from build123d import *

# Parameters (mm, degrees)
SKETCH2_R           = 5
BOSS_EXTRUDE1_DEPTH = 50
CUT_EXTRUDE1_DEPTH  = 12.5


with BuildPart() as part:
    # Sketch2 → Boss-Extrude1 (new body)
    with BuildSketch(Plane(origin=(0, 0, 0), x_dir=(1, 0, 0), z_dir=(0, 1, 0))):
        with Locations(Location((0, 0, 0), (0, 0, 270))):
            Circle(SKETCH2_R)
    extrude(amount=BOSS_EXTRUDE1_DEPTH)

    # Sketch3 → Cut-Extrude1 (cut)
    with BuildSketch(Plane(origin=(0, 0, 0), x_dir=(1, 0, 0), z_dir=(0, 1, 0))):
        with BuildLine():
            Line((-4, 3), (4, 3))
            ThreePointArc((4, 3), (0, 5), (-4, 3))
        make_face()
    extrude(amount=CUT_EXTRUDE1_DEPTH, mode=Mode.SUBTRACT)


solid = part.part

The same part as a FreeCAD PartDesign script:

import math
import FreeCAD as App
import Part
import Sketcher
from FreeCAD import Vector

doc = App.newDocument("Part")
body = doc.addObject("PartDesign::Body", "Body")

sketch1 = body.newObject("Sketcher::SketchObject", "Sketch")
sketch1.AttachmentSupport = (doc.getObject("XZ_Plane"), [""])
sketch1.MapMode = "FlatFace"
sketch1.addGeometry(Part.Circle(Vector(0, 0, 0), Vector(0, 0, 1), 5), False)
sketch1.addConstraint([
    Sketcher.Constraint("Coincident", 0, 3, -1, 1),
    Sketcher.Constraint("Diameter", 0, 10.0),
])
pad1 = body.newObject("PartDesign::Pad", "Pad")
pad1.Profile = sketch1
pad1.Length = 50
pad1.Reversed = True

sketch2 = body.newObject("Sketcher::SketchObject", "Sketch001")
sketch2.AttachmentSupport = (doc.getObject("XZ_Plane"), [""])
sketch2.MapMode = "FlatFace"
sketch2.addGeometry([
    Part.LineSegment(Vector(-4, -3, 0), Vector(4, -3, 0)),
    Part.ArcOfCircle(Part.Circle(Vector(0, 0, 0), Vector(0, 0, 1), 5), math.radians(-143), math.radians(-37)),
], False)
sketch2.addConstraint([
    Sketcher.Constraint("Coincident", 0, 1, 1, 1),
    Sketcher.Constraint("Coincident", 1, 2, 0, 2),
    Sketcher.Constraint("Horizontal", 0),
    Sketcher.Constraint("Coincident", 1, 3, -1, 1),
    Sketcher.Constraint("Radius", 1, 5.0),
    Sketcher.Constraint("DistanceX", 0, 1, 0, 2, 8.0),
])
pocket1 = body.newObject("PartDesign::Pocket", "Pocket")
pocket1.Profile = sketch2
pocket1.Length = 12.5

doc.recompute()
